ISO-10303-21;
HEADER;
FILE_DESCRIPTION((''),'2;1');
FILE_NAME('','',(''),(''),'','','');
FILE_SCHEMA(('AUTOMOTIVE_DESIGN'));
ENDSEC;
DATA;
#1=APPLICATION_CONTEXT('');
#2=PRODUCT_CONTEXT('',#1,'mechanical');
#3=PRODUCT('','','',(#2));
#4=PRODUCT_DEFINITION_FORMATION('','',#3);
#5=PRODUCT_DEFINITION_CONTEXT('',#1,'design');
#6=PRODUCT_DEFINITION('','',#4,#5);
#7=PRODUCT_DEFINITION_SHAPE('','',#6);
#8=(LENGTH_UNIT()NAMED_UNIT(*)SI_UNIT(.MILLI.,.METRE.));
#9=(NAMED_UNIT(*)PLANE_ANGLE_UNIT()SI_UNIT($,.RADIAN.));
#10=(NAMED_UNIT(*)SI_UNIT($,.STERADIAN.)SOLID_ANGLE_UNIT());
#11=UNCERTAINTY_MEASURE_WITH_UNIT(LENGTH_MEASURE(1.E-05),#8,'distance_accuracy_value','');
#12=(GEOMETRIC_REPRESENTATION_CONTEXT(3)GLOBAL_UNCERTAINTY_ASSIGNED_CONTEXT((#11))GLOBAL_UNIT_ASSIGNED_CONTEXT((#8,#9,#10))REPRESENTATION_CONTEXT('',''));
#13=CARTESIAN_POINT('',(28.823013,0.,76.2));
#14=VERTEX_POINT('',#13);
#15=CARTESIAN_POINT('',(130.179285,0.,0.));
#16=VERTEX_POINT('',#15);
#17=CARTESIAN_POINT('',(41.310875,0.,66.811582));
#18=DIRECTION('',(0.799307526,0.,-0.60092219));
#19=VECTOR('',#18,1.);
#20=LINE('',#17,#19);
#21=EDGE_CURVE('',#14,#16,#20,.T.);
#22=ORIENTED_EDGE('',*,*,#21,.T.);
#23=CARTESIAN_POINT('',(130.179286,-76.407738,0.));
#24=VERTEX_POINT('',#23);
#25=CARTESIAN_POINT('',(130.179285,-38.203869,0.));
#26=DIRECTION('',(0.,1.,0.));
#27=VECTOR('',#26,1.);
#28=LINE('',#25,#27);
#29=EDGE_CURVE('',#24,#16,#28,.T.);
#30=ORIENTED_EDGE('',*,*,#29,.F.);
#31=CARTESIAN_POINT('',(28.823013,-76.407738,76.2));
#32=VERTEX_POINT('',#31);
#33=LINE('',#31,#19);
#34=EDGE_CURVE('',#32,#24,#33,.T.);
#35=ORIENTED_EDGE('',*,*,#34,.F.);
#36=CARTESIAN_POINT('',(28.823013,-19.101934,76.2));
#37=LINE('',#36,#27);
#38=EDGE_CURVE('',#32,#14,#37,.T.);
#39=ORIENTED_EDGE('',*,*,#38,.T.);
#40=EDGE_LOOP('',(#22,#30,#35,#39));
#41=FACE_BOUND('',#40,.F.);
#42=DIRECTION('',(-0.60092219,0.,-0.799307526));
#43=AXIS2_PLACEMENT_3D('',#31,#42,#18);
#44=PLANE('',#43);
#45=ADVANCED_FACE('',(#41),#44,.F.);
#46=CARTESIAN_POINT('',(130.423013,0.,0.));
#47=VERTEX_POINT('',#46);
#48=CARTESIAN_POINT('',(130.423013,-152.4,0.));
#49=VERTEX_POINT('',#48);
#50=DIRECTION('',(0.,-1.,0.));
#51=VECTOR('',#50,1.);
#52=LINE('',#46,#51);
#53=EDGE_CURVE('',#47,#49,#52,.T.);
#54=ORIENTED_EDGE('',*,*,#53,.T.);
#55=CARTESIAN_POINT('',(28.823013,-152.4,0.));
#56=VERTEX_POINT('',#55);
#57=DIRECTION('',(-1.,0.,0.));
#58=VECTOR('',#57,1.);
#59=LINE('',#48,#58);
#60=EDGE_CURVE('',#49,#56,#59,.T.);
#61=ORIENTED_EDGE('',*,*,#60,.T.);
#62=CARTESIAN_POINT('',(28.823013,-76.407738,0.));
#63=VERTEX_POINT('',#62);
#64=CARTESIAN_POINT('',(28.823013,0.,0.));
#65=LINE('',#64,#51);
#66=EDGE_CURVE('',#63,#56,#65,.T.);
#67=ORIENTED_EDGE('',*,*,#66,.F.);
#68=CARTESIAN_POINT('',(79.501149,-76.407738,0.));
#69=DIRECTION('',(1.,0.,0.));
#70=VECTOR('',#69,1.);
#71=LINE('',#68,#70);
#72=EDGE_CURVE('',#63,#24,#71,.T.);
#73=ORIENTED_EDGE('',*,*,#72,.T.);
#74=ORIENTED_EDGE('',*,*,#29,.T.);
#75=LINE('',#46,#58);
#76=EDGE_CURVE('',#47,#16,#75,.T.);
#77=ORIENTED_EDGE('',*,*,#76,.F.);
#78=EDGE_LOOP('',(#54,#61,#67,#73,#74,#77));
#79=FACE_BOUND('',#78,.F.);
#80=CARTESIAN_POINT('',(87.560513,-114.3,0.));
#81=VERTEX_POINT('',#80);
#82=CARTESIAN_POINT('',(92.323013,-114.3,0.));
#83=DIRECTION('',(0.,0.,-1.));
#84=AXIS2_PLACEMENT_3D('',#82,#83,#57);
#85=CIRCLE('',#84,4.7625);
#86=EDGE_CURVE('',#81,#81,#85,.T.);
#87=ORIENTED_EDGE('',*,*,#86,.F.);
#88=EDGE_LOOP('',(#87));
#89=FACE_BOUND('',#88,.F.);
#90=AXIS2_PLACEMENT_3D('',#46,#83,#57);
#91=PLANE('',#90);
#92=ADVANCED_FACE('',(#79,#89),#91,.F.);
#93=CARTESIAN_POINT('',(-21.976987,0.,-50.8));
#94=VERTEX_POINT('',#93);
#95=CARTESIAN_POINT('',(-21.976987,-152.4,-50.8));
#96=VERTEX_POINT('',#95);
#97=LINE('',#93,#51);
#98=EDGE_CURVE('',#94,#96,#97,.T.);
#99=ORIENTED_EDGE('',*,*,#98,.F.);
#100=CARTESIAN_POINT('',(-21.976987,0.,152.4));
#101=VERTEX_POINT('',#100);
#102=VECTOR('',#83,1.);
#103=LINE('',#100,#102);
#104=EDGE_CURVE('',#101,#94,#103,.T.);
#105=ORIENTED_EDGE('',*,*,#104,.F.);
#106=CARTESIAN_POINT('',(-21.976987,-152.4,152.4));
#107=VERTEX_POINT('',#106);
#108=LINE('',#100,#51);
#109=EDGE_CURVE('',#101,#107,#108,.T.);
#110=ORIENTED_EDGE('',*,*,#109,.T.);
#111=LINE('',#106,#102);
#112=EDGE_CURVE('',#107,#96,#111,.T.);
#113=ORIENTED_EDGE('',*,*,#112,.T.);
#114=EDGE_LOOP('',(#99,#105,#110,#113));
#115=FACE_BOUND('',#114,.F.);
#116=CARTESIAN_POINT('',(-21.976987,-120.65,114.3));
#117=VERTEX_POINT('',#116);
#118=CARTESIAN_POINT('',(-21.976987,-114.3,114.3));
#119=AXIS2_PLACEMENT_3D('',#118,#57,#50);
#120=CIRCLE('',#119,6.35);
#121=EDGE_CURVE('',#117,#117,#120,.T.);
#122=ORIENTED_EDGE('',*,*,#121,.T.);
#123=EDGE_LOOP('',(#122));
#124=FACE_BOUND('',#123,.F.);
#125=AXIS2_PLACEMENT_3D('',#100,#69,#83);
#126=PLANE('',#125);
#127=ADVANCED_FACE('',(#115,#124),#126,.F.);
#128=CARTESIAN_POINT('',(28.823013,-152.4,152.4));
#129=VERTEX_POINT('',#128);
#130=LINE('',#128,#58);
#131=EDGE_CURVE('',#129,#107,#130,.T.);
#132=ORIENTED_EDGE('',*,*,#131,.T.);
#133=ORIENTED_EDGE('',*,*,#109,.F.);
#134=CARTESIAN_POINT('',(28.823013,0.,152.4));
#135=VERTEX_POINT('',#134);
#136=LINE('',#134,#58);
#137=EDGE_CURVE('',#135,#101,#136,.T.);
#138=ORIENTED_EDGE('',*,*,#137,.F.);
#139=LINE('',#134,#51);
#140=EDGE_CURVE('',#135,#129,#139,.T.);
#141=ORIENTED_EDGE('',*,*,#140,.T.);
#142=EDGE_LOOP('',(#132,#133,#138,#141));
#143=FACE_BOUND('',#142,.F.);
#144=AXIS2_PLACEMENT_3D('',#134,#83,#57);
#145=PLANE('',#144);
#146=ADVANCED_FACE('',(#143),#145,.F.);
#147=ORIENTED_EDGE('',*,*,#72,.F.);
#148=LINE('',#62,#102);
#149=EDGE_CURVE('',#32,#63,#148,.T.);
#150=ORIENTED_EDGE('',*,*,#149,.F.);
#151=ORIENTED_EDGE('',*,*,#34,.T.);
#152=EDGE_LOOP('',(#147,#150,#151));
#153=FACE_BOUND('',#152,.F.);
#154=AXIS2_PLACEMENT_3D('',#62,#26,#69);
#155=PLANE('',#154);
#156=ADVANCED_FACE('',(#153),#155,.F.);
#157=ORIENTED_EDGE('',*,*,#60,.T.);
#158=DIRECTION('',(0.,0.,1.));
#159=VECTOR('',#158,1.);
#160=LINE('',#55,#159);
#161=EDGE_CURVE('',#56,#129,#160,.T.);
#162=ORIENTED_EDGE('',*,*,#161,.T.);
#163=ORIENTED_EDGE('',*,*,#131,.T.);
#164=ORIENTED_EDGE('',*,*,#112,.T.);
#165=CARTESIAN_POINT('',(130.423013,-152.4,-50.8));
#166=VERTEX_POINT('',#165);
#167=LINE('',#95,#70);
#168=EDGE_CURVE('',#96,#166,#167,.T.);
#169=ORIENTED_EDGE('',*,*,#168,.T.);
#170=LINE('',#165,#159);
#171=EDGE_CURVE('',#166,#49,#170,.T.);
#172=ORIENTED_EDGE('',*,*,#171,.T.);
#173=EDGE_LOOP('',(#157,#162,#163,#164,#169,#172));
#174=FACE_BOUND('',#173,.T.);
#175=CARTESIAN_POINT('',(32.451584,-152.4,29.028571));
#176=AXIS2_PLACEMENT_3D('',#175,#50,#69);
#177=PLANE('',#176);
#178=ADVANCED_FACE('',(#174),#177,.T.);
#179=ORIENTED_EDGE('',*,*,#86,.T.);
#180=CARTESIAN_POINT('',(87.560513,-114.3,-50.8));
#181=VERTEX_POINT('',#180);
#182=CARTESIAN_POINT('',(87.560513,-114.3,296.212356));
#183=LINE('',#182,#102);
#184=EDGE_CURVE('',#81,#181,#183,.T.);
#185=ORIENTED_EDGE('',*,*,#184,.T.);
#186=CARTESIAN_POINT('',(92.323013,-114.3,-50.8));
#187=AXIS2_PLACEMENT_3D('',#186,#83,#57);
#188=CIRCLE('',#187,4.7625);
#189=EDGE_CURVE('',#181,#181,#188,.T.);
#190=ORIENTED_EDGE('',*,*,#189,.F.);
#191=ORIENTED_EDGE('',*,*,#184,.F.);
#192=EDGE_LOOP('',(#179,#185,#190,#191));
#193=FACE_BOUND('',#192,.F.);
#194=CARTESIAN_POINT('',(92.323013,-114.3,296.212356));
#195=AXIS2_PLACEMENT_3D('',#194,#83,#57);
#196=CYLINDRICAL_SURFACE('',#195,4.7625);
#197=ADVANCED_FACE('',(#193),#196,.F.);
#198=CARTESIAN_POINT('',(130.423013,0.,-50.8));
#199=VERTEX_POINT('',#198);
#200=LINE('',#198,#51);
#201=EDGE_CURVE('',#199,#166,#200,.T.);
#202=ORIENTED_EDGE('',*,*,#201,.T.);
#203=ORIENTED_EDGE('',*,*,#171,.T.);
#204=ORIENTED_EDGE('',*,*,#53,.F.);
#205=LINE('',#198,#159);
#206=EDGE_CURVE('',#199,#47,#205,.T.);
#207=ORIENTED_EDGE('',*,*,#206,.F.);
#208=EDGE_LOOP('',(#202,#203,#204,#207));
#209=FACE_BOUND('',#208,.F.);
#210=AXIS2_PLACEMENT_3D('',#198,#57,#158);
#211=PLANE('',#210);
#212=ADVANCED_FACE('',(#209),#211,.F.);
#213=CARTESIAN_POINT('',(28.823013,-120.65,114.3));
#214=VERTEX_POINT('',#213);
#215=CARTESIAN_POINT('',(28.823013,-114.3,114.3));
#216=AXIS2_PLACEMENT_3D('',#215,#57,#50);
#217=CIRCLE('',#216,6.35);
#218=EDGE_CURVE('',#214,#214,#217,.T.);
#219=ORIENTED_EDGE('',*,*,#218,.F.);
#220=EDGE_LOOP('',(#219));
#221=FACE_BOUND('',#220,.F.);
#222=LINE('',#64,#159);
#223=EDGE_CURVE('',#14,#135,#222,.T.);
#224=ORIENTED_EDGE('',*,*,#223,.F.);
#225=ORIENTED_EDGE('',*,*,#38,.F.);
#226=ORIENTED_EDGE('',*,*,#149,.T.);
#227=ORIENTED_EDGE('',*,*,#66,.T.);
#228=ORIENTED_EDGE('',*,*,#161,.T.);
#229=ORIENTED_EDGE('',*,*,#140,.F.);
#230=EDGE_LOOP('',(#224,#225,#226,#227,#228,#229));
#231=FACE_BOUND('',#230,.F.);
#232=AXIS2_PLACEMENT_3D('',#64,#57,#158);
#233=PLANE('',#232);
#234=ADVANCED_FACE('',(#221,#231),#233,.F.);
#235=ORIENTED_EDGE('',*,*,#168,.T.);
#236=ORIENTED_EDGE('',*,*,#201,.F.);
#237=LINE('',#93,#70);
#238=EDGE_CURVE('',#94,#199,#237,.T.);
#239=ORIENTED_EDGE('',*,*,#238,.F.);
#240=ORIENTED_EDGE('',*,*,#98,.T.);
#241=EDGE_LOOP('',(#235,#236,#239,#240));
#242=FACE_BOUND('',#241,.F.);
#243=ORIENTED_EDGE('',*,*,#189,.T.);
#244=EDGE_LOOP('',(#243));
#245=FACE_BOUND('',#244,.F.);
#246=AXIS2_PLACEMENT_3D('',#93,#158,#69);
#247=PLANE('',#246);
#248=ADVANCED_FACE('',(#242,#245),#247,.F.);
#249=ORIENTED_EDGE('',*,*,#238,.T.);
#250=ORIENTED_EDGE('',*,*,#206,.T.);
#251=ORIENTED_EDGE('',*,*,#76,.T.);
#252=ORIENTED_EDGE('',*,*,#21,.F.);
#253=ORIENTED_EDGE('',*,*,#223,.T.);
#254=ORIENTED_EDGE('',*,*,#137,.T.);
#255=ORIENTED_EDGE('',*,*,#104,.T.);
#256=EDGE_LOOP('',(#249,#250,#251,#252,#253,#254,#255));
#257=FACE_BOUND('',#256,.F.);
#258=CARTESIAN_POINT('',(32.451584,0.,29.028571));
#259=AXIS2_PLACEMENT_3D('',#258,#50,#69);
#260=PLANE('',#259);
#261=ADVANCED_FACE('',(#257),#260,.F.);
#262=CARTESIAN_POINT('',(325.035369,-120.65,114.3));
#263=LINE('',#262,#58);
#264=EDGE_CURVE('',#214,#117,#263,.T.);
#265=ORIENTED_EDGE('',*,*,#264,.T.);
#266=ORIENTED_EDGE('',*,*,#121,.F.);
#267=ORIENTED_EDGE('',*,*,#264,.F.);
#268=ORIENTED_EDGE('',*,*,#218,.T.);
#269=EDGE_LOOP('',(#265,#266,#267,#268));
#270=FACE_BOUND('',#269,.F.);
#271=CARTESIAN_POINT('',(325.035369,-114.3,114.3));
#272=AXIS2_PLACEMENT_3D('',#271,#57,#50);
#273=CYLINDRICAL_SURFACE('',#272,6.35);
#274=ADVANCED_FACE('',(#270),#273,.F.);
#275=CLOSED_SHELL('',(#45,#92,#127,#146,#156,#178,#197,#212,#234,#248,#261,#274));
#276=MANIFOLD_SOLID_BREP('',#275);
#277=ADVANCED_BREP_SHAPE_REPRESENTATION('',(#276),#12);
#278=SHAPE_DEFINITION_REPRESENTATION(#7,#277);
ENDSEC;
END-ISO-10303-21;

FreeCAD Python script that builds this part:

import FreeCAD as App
import Part
import Sketcher
Q = App.Units.Quantity


def add_polygon(sketch, points):
    """Adds a closed chain of lines whose ends are joined by coincident constraints."""
    first, n = sketch.GeometryCount, len(points)
    for a, b in zip(points, points[1:] + points[:1]):
        sketch.addGeometry(Part.LineSegment(App.Vector(*a, 0), App.Vector(*b, 0)), False)
    for i in range(n):
        sketch.addConstraint(Sketcher.Constraint("Coincident", first + i, 2, first + (i + 1) % n, 1))

doc = App.newDocument("Part")
body = doc.addObject("PartDesign::Body", "Body")

sketch1 = doc.addObject("Sketcher::SketchObject", "Sketch")
body.addObject(sketch1)
sketch1.AttachmentSupport = (doc.XZ_Plane, [""])
sketch1.MapMode = "FlatFace"
add_polygon(sketch1, [(29, 0), (29, 152), (-22, 152), (-22, -51), (130, -51), (130, 0)])
sketch1.addConstraint([
    Sketcher.Constraint("Vertical", 0),
    Sketcher.Constraint("Horizontal", 1),
    Sketcher.Constraint("Vertical", 2),
    Sketcher.Constraint("Horizontal", 3),
    Sketcher.Constraint("Vertical", 4),
    Sketcher.Constraint("Horizontal", 5),
    Sketcher.Constraint("PointOnObject", 4, 2, -1),
    Sketcher.Constraint("Equal", 3, 0),
    Sketcher.Constraint("Equal", 1, 4),
    Sketcher.Constraint("DistanceX", 1, 2, 1, 1, Q("2 in")),
    Sketcher.Constraint("DistanceX", 3, 1, 3, 2, Q("6 in")),
    Sketcher.Constraint("DistanceX", -1, 1, 0, 2, 28.823013),
])
pad1 = doc.addObject("PartDesign::Pad", "Pad")
body.addObject(pad1)
pad1.Profile = sketch1
pad1.Length = Q("6 in")

sketch2 = doc.addObject("Sketcher::SketchObject", "Sketch001")
body.addObject(sketch2)
sketch2.AttachmentSupport = (doc.XY_Plane, [""])
sketch2.MapMode = "FlatFace"
add_polygon(sketch2, [(29, 0), (29, -76), (130, -76), (130, 0)])
sketch2.addConstraint([
    Sketcher.Constraint("Vertical", 0),
    Sketcher.Constraint("Horizontal", 1),
    Sketcher.Constraint("Vertical", 2),
    Sketcher.Constraint("Horizontal", 3),
    Sketcher.Constraint("PointOnObject", 2, 2, -1),
    Sketcher.Constraint("DistanceX", 1, 1, 1, 2, 101.356273),
    Sketcher.Constraint("DistanceY", 0, 2, 0, 1, 76.407738),
    Sketcher.Constraint("DistanceX", -1, 1, 0, 2, 28.823013),
])
pad2 = doc.addObject("PartDesign::Pad", "Pad001")
body.addObject(pad2)
pad2.Profile = sketch2
pad2.Length = Q("3 in")

sketch3 = doc.addObject("Sketcher::SketchObject", "Sketch002")
body.addObject(sketch3)
sketch3.AttachmentSupport = (doc.XZ_Plane, [""])
sketch3.MapMode = "FlatFace"
sketch3.AttachmentOffset = App.Placement(App.Vector(0, 0, 76.407738), App.Rotation())
add_polygon(sketch3, [(130, 76), (29, 76), (130, 0)])
sketch3.addConstraint([
    Sketcher.Constraint("Horizontal", 0),
    Sketcher.Constraint("Vertical", 2),
    Sketcher.Constraint("PointOnObject", 1, 2, -1),
    Sketcher.Constraint("DistanceY", 2, 1, 2, 2, Q("3 in")),
    Sketcher.Constraint("DistanceX", 0, 2, 0, 1, 101.356273),
    Sketcher.Constraint("DistanceX", -1, 1, 0, 2, 28.823013),
])
pocket1 = doc.addObject("PartDesign::Pocket", "Pocket")
body.addObject(pocket1)
pocket1.Profile = sketch3
pocket1.Length = 84.108479

sketch4 = doc.addObject("Sketcher::SketchObject", "Sketch003")
body.addObject(sketch4)
sketch4.AttachmentSupport = (doc.XY_Plane, [""])
sketch4.MapMode = "FlatFace"
sketch4.addGeometry(Part.Circle(App.Vector(92.3, -114.3, 0), App.Vector(0, 0, 1), 4.8), False)
sketch4.addConstraint([
    Sketcher.Constraint("Diameter", 0, Q("0.375 in")),
    Sketcher.Constraint("DistanceY", 0, 3, -1, 1, Q("4.5 in")),
    Sketcher.Constraint("DistanceX", -1, 1, 0, 3, 92.323013),
])
doc.recompute()
hole = doc.addObject("PartDesign::Hole", "Hole")
body.addObject(hole)
hole.Profile = sketch4
hole.ThreadType = "None"
hole.Diameter = Q("0.375 in")
hole.DepthType = "ThroughAll"

sketch5 = doc.addObject("Sketcher::SketchObject", "Sketch004")
body.addObject(sketch5)
sketch5.AttachmentSupport = (doc.YZ_Plane, [""])
sketch5.MapMode = "FlatFace"
sketch5.AttachmentOffset = App.Placement(App.Vector(0, 0, 28.823013), App.Rotation())
sketch5.addGeometry(Part.Circle(App.Vector(-114, 114, 0), App.Vector(0, 0, 1), 6), False)
sketch5.addConstraint([
    Sketcher.Constraint("Diameter", 0, Q("0.5 in")),
    Sketcher.Constraint("DistanceX", 0, 3, -1, 1, Q("4.5 in")),
    Sketcher.Constraint("DistanceY", -1, 1, 0, 3, Q("4.5 in")),
])
doc.recompute()
hole2 = doc.addObject("PartDesign::Hole", "Hole001")
body.addObject(hole2)
hole2.Profile = sketch5
hole2.ThreadType = "None"
hole2.Diameter = Q("0.5 in")
hole2.DepthType = "ThroughAll"

doc.recompute()
